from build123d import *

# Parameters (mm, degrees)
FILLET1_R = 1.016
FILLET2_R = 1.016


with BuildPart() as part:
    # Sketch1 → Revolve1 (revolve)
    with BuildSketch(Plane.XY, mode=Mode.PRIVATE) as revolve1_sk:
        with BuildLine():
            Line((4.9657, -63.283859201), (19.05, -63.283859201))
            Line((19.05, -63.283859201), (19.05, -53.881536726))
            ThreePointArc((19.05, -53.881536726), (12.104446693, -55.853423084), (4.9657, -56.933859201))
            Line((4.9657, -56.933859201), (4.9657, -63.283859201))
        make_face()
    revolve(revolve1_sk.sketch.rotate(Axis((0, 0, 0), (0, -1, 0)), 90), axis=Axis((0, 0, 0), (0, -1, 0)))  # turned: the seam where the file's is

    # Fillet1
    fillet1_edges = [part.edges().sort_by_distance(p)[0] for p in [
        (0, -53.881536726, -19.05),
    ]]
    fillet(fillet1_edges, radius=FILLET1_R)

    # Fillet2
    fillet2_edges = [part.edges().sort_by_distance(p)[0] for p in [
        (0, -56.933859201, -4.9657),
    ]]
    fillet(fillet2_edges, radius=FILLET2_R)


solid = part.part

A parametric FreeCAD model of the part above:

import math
import FreeCAD as App
import Part
import Sketcher

V = App.Vector
Q = App.Units.Quantity


def edges_at(feature, points):
    """Names of the edges that pass closest to the given points."""
    edges = feature.Shape.Edges
    near = lambda p: min(range(len(edges)), key=lambda i: edges[i].distToShape(Part.Vertex(*p))[0])
    return sorted({f"Edge{near(p) + 1}" for p in points})

doc = App.newDocument("Part")
body = doc.addObject("PartDesign::Body", "Body")

# Sketch on XY plane
sketch1 = body.newObject("Sketcher::SketchObject", "Sketch")
sketch1.AttachmentSupport = (doc.getObject("XY_Plane"), [""])
sketch1.MapMode = "FlatFace"
sketch1.addGeometry([
    Part.LineSegment(V(5, -63, 0), V(19, -63, 0)),
    Part.LineSegment(V(19, -63, 0), V(19, -54, 0)),
    Part.ArcOfCircle(Part.Circle(V(0, 0, 0), V(0, 0, 1), 57), math.radians(-85.02), math.radians(-70.53)),
    Part.LineSegment(V(5, -57, 0), V(5, -63, 0)),
], False)
sketch1.addConstraint([
    Sketcher.Constraint("Coincident", 0, 2, 1, 1),
    Sketcher.Constraint("Coincident", 1, 2, 2, 2),
    Sketcher.Constraint("Coincident", 2, 1, 3, 1),
    Sketcher.Constraint("Coincident", 3, 2, 0, 1),
    Sketcher.Constraint("Horizontal", 0),
    Sketcher.Constraint("Vertical", 1),
    Sketcher.Constraint("Vertical", 3),
    Sketcher.Constraint("Coincident", 2, 3, -1, 1),
    Sketcher.Constraint("Radius", 2, Q("2.25 in")),
    Sketcher.Constraint("DistanceY", 3, 2, 3, 1, Q("0.25 in")),
    Sketcher.Constraint("DistanceX", -1, 1, 0, 2, Q("0.75 in")),
    Sketcher.Constraint("DistanceX", 0, 1, 0, 2, Q("0.5545 in")),
])
revolution = body.newObject("PartDesign::Revolution", "Revolution")
revolution.Profile = sketch1
revolution.ReferenceAxis = (sketch1, ["V_Axis"])
revolution.Angle = 360
doc.recompute()

fillet = body.newObject("PartDesign::Fillet", "Fillet")
fillet.Base = (revolution, edges_at(revolution, [(0, -53.882, -19.05)]))
fillet.Radius = Q("0.04 in")
doc.recompute()

fillet2 = body.newObject("PartDesign::Fillet", "Fillet001")
fillet2.Base = (fillet, edges_at(fillet, [(0, -56.934, -4.966)]))
fillet2.Radius = Q("0.04 in")

doc.recompute()
